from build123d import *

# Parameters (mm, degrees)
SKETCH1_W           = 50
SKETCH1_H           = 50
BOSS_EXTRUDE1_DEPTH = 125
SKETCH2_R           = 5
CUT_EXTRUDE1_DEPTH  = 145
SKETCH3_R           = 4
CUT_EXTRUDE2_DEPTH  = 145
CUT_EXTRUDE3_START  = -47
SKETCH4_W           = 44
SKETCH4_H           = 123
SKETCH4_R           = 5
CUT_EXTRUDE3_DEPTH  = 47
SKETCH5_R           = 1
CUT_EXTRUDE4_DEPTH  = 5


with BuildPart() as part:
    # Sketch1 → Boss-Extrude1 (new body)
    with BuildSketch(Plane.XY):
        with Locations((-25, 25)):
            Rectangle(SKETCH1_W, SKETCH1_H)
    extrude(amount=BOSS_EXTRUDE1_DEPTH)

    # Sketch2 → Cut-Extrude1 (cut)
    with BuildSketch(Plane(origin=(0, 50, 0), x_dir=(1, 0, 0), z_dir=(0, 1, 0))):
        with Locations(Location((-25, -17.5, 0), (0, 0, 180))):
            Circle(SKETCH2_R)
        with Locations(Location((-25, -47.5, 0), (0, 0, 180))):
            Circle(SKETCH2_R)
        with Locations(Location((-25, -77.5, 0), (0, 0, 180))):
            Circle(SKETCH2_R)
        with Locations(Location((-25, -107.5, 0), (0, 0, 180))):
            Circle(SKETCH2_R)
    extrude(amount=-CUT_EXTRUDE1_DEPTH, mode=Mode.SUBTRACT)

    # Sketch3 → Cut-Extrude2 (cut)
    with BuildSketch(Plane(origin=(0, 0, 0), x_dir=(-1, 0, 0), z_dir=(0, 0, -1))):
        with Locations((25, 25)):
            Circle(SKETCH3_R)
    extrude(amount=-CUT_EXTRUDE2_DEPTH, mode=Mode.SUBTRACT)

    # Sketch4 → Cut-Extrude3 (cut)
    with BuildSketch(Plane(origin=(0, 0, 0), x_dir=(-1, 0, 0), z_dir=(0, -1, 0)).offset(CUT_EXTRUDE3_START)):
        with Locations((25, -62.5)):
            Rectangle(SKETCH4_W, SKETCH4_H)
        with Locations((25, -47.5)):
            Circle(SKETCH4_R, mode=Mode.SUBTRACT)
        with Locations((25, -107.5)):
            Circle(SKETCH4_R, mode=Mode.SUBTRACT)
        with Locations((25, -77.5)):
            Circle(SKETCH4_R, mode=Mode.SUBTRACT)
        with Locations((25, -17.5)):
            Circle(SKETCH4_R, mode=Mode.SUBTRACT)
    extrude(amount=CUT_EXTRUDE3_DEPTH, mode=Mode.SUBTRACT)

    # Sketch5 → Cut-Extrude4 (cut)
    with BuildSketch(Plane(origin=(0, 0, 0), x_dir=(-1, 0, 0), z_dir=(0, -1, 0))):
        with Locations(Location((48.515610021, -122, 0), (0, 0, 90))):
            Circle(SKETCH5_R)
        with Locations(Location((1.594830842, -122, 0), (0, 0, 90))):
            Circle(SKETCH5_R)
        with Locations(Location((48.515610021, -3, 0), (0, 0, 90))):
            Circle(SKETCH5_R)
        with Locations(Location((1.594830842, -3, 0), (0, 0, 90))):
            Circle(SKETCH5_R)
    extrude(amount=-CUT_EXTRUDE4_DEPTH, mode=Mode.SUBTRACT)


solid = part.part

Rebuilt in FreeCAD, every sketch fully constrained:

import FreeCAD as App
import Part
import Sketcher

V = App.Vector

doc = App.newDocument("Part")
body = doc.addObject("PartDesign::Body", "Body")

# Sketch on XY plane
sketch1 = doc.addObject("Sketcher::SketchObject", "Sketch")
body.addObject(sketch1)
sketch1.AttachmentSupport = (doc.XY_Plane, [""])
sketch1.MapMode = "FlatFace"
sketch1.addGeometry([
    Part.LineSegment(V(-50, 50, 0), V(-50, 0, 0)),
    Part.LineSegment(V(-50, 0, 0), V(0, 0, 0)),
    Part.LineSegment(V(0, 0, 0), V(0, 50, 0)),
    Part.LineSegment(V(0, 50, 0), V(-50, 50, 0)),
], False)
sketch1.addConstraint([
    Sketcher.Constraint("Coincident", 0, 2, 1, 1),
    Sketcher.Constraint("Coincident", 1, 2, 2, 1),
    Sketcher.Constraint("Coincident", 2, 2, 3, 1),
    Sketcher.Constraint("Coincident", 3, 2, 0, 1),
    Sketcher.Constraint("Vertical", 0),
    Sketcher.Constraint("Horizontal", 1),
    Sketcher.Constraint("Vertical", 2),
    Sketcher.Constraint("Horizontal", 3),
    Sketcher.Constraint("Coincident", 1, 2, -1, 1),
    Sketcher.Constraint("Equal", 3, 0),
    Sketcher.Constraint("DistanceX", 1, 1, 1, 2, 50.0),
])
pad1 = doc.addObject("PartDesign::Pad", "Pad")
body.addObject(pad1)
pad1.Profile = sketch1
pad1.Length = 125

# Sketch on XZ plane
sketch2 = doc.addObject("Sketcher::SketchObject", "Sketch001")
body.addObject(sketch2)
sketch2.AttachmentSupport = (doc.XZ_Plane, [""])
sketch2.MapMode = "FlatFace"
sketch2.AttachmentOffset = App.Placement(V(0, 0, -50), App.Rotation())
sketch2.addGeometry([
    Part.Circle(V(-25, 18, 0), V(0, 0, 1), 5),
    Part.Circle(V(-25, 48, 0), V(0, 0, 1), 5),
    Part.Circle(V(-25, 78, 0), V(0, 0, 1), 5),
    Part.Circle(V(-25, 108, 0), V(0, 0, 1), 5),
], False)
sketch2.addConstraint([
    Sketcher.Constraint("Equal", 0, 1),
    Sketcher.Constraint("Equal", 1, 2),
    Sketcher.Constraint("Equal", 2, 3),
    Sketcher.Constraint("Vertical", 0, 3, 1, 3),
    Sketcher.Constraint("Vertical", 1, 3, 2, 3),
    Sketcher.Constraint("Vertical", 2, 3, 3, 3),
    Sketcher.Constraint("Diameter", 0, 10.0),
    Sketcher.Constraint("DistanceX", 0, 3, -1, 1, 25.0),
    Sketcher.Constraint("DistanceY", 0, 3, 1, 3, 30.0),
    Sketcher.Constraint("DistanceY", 1, 3, 2, 3, 30.0),
    Sketcher.Constraint("DistanceY", 2, 3, 3, 3, 30.0),
    Sketcher.Constraint("DistanceY", -1, 1, 0, 3, 17.5),
])
pocket1 = doc.addObject("PartDesign::Pocket", "Pocket")
body.addObject(pocket1)
pocket1.Profile = sketch2
pocket1.Length = 145
pocket1.Reversed = True

# Sketch on XY plane
sketch3 = doc.addObject("Sketcher::SketchObject", "Sketch002")
body.addObject(sketch3)
sketch3.AttachmentSupport = (doc.XY_Plane, [""])
sketch3.MapMode = "FlatFace"
sketch3.addGeometry(Part.Circle(V(-25, 25, 0), V(0, 0, 1), 4), False)
sketch3.addConstraint([
    Sketcher.Constraint("Diameter", 0, 8.0),
    Sketcher.Constraint("DistanceX", 0, 3, -1, 1, 25.0),
    Sketcher.Constraint("DistanceY", -1, 1, 0, 3, 25.0),
])
pocket2 = doc.addObject("PartDesign::Pocket", "Pocket001")
body.addObject(pocket2)
pocket2.Profile = sketch3
pocket2.Length = 145
pocket2.Reversed = True

# Sketch on XZ plane
sketch4 = doc.addObject("Sketcher::SketchObject", "Sketch003")
body.addObject(sketch4)
sketch4.AttachmentSupport = (doc.XZ_Plane, [""])
sketch4.MapMode = "FlatFace"
sketch4.AttachmentOffset = App.Placement(V(0, 0, -47), App.Rotation())
sketch4.addGeometry([
    Part.LineSegment(V(-3, 1, 0), V(-3, 124, 0)),  # 0
    Part.LineSegment(V(-3, 124, 0), V(-47, 124, 0)),  # 1
    Part.LineSegment(V(-47, 124, 0), V(-47, 1, 0)),  # 2
    Part.LineSegment(V(-47, 1, 0), V(-3, 1, 0)),  # 3
    Part.Circle(V(-25, 108, 0), V(0, 0, 1), 5),  # 4
    Part.Circle(V(-25, 78, 0), V(0, 0, 1), 5),  # 5
    Part.Circle(V(-25, 48, 0), V(0, 0, 1), 5),  # 6
    Part.Circle(V(-25, 18, 0), V(0, 0, 1), 5),  # 7
], False)
sketch4.addConstraint([
    Sketcher.Constraint("Coincident", 0, 2, 1, 1),
    Sketcher.Constraint("Coincident", 1, 2, 2, 1),
    Sketcher.Constraint("Coincident", 2, 2, 3, 1),
    Sketcher.Constraint("Coincident", 3, 2, 0, 1),
    Sketcher.Constraint("Vertical", 0),
    Sketcher.Constraint("Horizontal", 1),
    Sketcher.Constraint("Vertical", 2),
    Sketcher.Constraint("Horizontal", 3),
    Sketcher.Constraint("Equal", 4, 5),
    Sketcher.Constraint("Equal", 5, 6),
    Sketcher.Constraint("Equal", 6, 7),
    Sketcher.Constraint("Vertical", 4, 3, 5, 3),
    Sketcher.Constraint("Vertical", 5, 3, 6, 3),
    Sketcher.Constraint("Vertical", 6, 3, 7, 3),
    Sketcher.Constraint("Diameter", 4, 10.0),
    Sketcher.Constraint("DistanceX", 1, 2, 1, 1, 44.0),
    Sketcher.Constraint("DistanceY", 0, 1, 0, 2, 123.0),
    Sketcher.Constraint("DistanceX", 4, 3, -1, 1, 25.0),
    Sketcher.Constraint("DistanceX", 0, 2, -1, 1, 3.0),
    Sketcher.Constraint("DistanceY", -1, 1, 0, 2, 124.0),
    Sketcher.Constraint("DistanceY", 5, 3, 4, 3, 30.0),
    Sketcher.Constraint("DistanceY", 6, 3, 5, 3, 30.0),
    Sketcher.Constraint("DistanceY", 7, 3, 6, 3, 30.0),
    Sketcher.Constraint("DistanceY", -1, 1, 4, 3, 107.5),
])
pocket3 = doc.addObject("PartDesign::Pocket", "Pocket002")
body.addObject(pocket3)
pocket3.Profile = sketch4
pocket3.Length = 47
pocket3.Reversed = True

# Sketch on XZ plane
sketch5 = doc.addObject("Sketcher::SketchObject", "Sketch004")
body.addObject(sketch5)
sketch5.AttachmentSupport = (doc.XZ_Plane, [""])
sketch5.MapMode = "FlatFace"
sketch5.addGeometry([
    Part.Circle(V(-48.5, 122, 0), V(0, 0, 1), 1),
    Part.Circle(V(-1.6, 122, 0), V(0, 0, 1), 1),
    Part.Circle(V(-48.5, 3, 0), V(0, 0, 1), 1),
    Part.Circle(V(-1.6, 3, 0), V(0, 0, 1), 1),
], False)
sketch5.addConstraint([
    Sketcher.Constraint("Equal", 0, 1),
    Sketcher.Constraint("Equal", 1, 2),
    Sketcher.Constraint("Equal", 2, 3),
    Sketcher.Constraint("Horizontal", 0, 3, 1, 3),
    Sketcher.Constraint("Horizontal", 2, 3, 3, 3),
    Sketcher.Constraint("Vertical", 0, 3, 2, 3),
    Sketcher.Constraint("Vertical", 1, 3, 3, 3),
    Sketcher.Constraint("Diameter", 0, 2.0),
    Sketcher.Constraint("DistanceY", -1, 1, 0, 3, 122.0),
    Sketcher.Constraint("DistanceY", -1, 1, 2, 3, 3.0),
    Sketcher.Constraint("DistanceX", 0, 3, -1, 1, 48.51561),
    Sketcher.Constraint("DistanceX", 1, 3, -1, 1, 1.594831),
])
pocket4 = doc.addObject("PartDesign::Pocket", "Pocket003")
body.addObject(pocket4)
pocket4.Profile = sketch5
pocket4.Length = 5

doc.recompute()
